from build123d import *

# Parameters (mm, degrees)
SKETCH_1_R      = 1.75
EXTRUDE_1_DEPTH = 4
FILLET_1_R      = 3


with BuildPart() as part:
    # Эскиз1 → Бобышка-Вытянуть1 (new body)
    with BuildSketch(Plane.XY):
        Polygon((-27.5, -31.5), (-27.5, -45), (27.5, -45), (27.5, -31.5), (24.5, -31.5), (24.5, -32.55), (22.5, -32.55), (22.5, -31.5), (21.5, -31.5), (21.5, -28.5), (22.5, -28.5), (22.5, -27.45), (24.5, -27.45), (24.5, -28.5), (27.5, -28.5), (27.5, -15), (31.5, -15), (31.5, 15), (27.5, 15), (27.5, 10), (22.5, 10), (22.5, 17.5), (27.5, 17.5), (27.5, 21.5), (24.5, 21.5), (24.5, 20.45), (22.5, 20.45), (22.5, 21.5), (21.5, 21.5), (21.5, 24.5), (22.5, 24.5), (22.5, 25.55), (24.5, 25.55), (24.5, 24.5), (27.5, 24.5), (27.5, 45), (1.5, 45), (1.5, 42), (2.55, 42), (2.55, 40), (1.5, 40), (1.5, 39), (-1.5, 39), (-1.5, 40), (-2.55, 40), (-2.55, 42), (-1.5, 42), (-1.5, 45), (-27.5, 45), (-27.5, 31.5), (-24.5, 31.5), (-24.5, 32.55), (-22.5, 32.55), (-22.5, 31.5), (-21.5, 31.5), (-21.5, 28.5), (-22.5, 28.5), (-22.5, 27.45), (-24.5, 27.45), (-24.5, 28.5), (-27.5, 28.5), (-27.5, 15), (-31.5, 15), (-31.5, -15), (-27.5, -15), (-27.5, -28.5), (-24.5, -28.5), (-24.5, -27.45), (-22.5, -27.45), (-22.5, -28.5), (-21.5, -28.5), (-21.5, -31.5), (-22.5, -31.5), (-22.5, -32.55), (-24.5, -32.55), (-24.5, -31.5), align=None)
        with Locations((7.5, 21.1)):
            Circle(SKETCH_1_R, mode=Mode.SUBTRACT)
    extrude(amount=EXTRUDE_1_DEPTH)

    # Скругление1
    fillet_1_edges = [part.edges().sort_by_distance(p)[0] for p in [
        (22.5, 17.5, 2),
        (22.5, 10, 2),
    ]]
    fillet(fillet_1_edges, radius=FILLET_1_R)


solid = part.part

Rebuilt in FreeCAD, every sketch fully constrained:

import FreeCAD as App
import Part
import Sketcher
from FreeCAD import Vector
Q = App.Units.Quantity


def edges_at(feature, points):
    """Names of the edges that pass closest to the given points."""
    edges = feature.Shape.Edges
    near = lambda p: min(range(len(edges)), key=lambda i: edges[i].distToShape(Part.Vertex(*p))[0])
    return sorted({f"Edge{near(p) + 1}" for p in points})

doc = App.newDocument("Part")
body = doc.addObject("PartDesign::Body", "Body")

# Sketch on XY plane
sketch1 = body.newObject("Sketcher::SketchObject", "Sketch")
sketch1.AttachmentSupport = (doc.getObject("XY_Plane"), [""])
sketch1.MapMode = "FlatFace"
sketch1.addGeometry([
    Part.LineSegment(Vector(-27.5, -31.5, 0), Vector(-27.5, -45, 0)),  # 0
    Part.LineSegment(Vector(-27.5, -45, 0), Vector(27.5, -45, 0)),  # 1
    Part.LineSegment(Vector(27.5, -45, 0), Vector(27.5, -31.5, 0)),  # 2
    Part.LineSegment(Vector(27.5, -31.5, 0), Vector(24.5, -31.5, 0)),  # 3
    Part.LineSegment(Vector(24.5, -31.5, 0), Vector(24.5, -32.55, 0)),  # 4
    Part.LineSegment(Vector(24.5, -32.55, 0), Vector(22.5, -32.55, 0)),  # 5
    Part.LineSegment(Vector(22.5, -32.55, 0), Vector(22.5, -31.5, 0)),  # 6
    Part.LineSegment(Vector(22.5, -31.5, 0), Vector(21.5, -31.5, 0)),  # 7
    Part.LineSegment(Vector(21.5, -31.5, 0), Vector(21.5, -28.5, 0)),  # 8
    Part.LineSegment(Vector(21.5, -28.5, 0), Vector(22.5, -28.5, 0)),  # 9
    Part.LineSegment(Vector(22.5, -28.5, 0), Vector(22.5, -27.45, 0)),  # 10
    Part.LineSegment(Vector(22.5, -27.45, 0), Vector(24.5, -27.45, 0)),  # 11
    Part.LineSegment(Vector(24.5, -27.45, 0), Vector(24.5, -28.5, 0)),  # 12
    Part.LineSegment(Vector(24.5, -28.5, 0), Vector(27.5, -28.5, 0)),  # 13
    Part.LineSegment(Vector(27.5, -28.5, 0), Vector(27.5, -15, 0)),  # 14
    Part.LineSegment(Vector(27.5, -15, 0), Vector(31.5, -15, 0)),  # 15
    Part.LineSegment(Vector(31.5, -15, 0), Vector(31.5, 15, 0)),  # 16
    Part.LineSegment(Vector(31.5, 15, 0), Vector(27.5, 15, 0)),  # 17
    Part.LineSegment(Vector(27.5, 15, 0), Vector(27.5, 10, 0)),  # 18
    Part.LineSegment(Vector(27.5, 10, 0), Vector(22.5, 10, 0)),  # 19
    Part.LineSegment(Vector(22.5, 10, 0), Vector(22.5, 17.5, 0)),  # 20
    Part.LineSegment(Vector(22.5, 17.5, 0), Vector(27.5, 17.5, 0)),  # 21
    Part.LineSegment(Vector(27.5, 17.5, 0), Vector(27.5, 21.5, 0)),  # 22
    Part.LineSegment(Vector(27.5, 21.5, 0), Vector(24.5, 21.5, 0)),  # 23
    Part.LineSegment(Vector(24.5, 21.5, 0), Vector(24.5, 20.45, 0)),  # 24
    Part.LineSegment(Vector(24.5, 20.45, 0), Vector(22.5, 20.45, 0)),  # 25
    Part.LineSegment(Vector(22.5, 20.45, 0), Vector(22.5, 21.5, 0)),  # 26
    Part.LineSegment(Vector(22.5, 21.5, 0), Vector(21.5, 21.5, 0)),  # 27
    Part.LineSegment(Vector(21.5, 21.5, 0), Vector(21.5, 24.5, 0)),  # 28
    Part.LineSegment(Vector(21.5, 24.5, 0), Vector(22.5, 24.5, 0)),  # 29
    Part.LineSegment(Vector(22.5, 24.5, 0), Vector(22.5, 25.55, 0)),  # 30
    Part.LineSegment(Vector(22.5, 25.55, 0), Vector(24.5, 25.55, 0)),  # 31
    Part.LineSegment(Vector(24.5, 25.55, 0), Vector(24.5, 24.5, 0)),  # 32
    Part.LineSegment(Vector(24.5, 24.5, 0), Vector(27.5, 24.5, 0)),  # 33
    Part.LineSegment(Vector(27.5, 24.5, 0), Vector(27.5, 45, 0)),  # 34
    Part.LineSegment(Vector(27.5, 45, 0), Vector(1.5, 45, 0)),  # 35
    Part.LineSegment(Vector(1.5, 45, 0), Vector(1.5, 42, 0)),  # 36
    Part.LineSegment(Vector(1.5, 42, 0), Vector(2.55, 42, 0)),  # 37
    Part.LineSegment(Vector(2.55, 42, 0), Vector(2.55, 40, 0)),  # 38
    Part.LineSegment(Vector(2.55, 40, 0), Vector(1.5, 40, 0)),  # 39
    Part.LineSegment(Vector(1.5, 40, 0), Vector(1.5, 39, 0)),  # 40
    Part.LineSegment(Vector(1.5, 39, 0), Vector(-1.5, 39, 0)),  # 41
    Part.LineSegment(Vector(-1.5, 39, 0), Vector(-1.5, 40, 0)),  # 42
    Part.LineSegment(Vector(-1.5, 40, 0), Vector(-2.55, 40, 0)),  # 43
    Part.LineSegment(Vector(-2.55, 40, 0), Vector(-2.55, 42, 0)),  # 44
    Part.LineSegment(Vector(-2.55, 42, 0), Vector(-1.5, 42, 0)),  # 45
    Part.LineSegment(Vector(-1.5, 42, 0), Vector(-1.5, 45, 0)),  # 46
    Part.LineSegment(Vector(-1.5, 45, 0), Vector(-27.5, 45, 0)),  # 47
    Part.LineSegment(Vector(-27.5, 45, 0), Vector(-27.5, 31.5, 0)),  # 48
    Part.LineSegment(Vector(-27.5, 31.5, 0), Vector(-24.5, 31.5, 0)),  # 49
    Part.LineSegment(Vector(-24.5, 31.5, 0), Vector(-24.5, 32.55, 0)),  # 50
    Part.LineSegment(Vector(-24.5, 32.55, 0), Vector(-22.5, 32.55, 0)),  # 51
    Part.LineSegment(Vector(-22.5, 32.55, 0), Vector(-22.5, 31.5, 0)),  # 52
    Part.LineSegment(Vector(-22.5, 31.5, 0), Vector(-21.5, 31.5, 0)),  # 53
    Part.LineSegment(Vector(-21.5, 31.5, 0), Vector(-21.5, 28.5, 0)),  # 54
    Part.LineSegment(Vector(-21.5, 28.5, 0), Vector(-22.5, 28.5, 0)),  # 55
    Part.LineSegment(Vector(-22.5, 28.5, 0), Vector(-22.5, 27.45, 0)),  # 56
    Part.LineSegment(Vector(-22.5, 27.45, 0), Vector(-24.5, 27.45, 0)),  # 57
    Part.LineSegment(Vector(-24.5, 27.45, 0), Vector(-24.5, 28.5, 0)),  # 58
    Part.LineSegment(Vector(-24.5, 28.5, 0), Vector(-27.5, 28.5, 0)),  # 59
    Part.LineSegment(Vector(-27.5, 28.5, 0), Vector(-27.5, 15, 0)),  # 60
    Part.LineSegment(Vector(-27.5, 15, 0), Vector(-31.5, 15, 0)),  # 61
    Part.LineSegment(Vector(-31.5, 15, 0), Vector(-31.5, -15, 0)),  # 62
    Part.LineSegment(Vector(-31.5, -15, 0), Vector(-27.5, -15, 0)),  # 63
    Part.LineSegment(Vector(-27.5, -15, 0), Vector(-27.5, -28.5, 0)),  # 64
    Part.LineSegment(Vector(-27.5, -28.5, 0), Vector(-24.5, -28.5, 0)),  # 65
    Part.LineSegment(Vector(-24.5, -28.5, 0), Vector(-24.5, -27.45, 0)),  # 66
    Part.LineSegment(Vector(-24.5, -27.45, 0), Vector(-22.5, -27.45, 0)),  # 67
    Part.LineSegment(Vector(-22.5, -27.45, 0), Vector(-22.5, -28.5, 0)),  # 68
    Part.LineSegment(Vector(-22.5, -28.5, 0), Vector(-21.5, -28.5, 0)),  # 69
    Part.LineSegment(Vector(-21.5, -28.5, 0), Vector(-21.5, -31.5, 0)),  # 70
    Part.LineSegment(Vector(-21.5, -31.5, 0), Vector(-22.5, -31.5, 0)),  # 71
    Part.LineSegment(Vector(-22.5, -31.5, 0), Vector(-22.5, -32.55, 0)),  # 72
    Part.LineSegment(Vector(-22.5, -32.55, 0), Vector(-24.5, -32.55, 0)),  # 73
    Part.LineSegment(Vector(-24.5, -32.55, 0), Vector(-24.5, -31.5, 0)),  # 74
    Part.LineSegment(Vector(-24.5, -31.5, 0), Vector(-27.5, -31.5, 0)),  # 75
    Part.Circle(Vector(7.5, 21.1, 0), Vector(0, 0, 1), 1.75),  # 76
], False)
sketch1.addConstraint([
    Sketcher.Constraint("Coincident", 0, 2, 1, 1),
    Sketcher.Constraint("Coincident", 1, 2, 2, 1),
    Sketcher.Constraint("Coincident", 2, 2, 3, 1),
    Sketcher.Constraint("Coincident", 3, 2, 4, 1),
    Sketcher.Constraint("Coincident", 4, 2, 5, 1),
    Sketcher.Constraint("Coincident", 5, 2, 6, 1),
    Sketcher.Constraint("Coincident", 6, 2, 7, 1),
    Sketcher.Constraint("Coincident", 7, 2, 8, 1),
    Sketcher.Constraint("Coincident", 8, 2, 9, 1),
    Sketcher.Constraint("Coincident", 9, 2, 10, 1),
    Sketcher.Constraint("Coincident", 10, 2, 11, 1),
    Sketcher.Constraint("Coincident", 11, 2, 12, 1),
    Sketcher.Constraint("Coincident", 12, 2, 13, 1),
    Sketcher.Constraint("Coincident", 13, 2, 14, 1),
    Sketcher.Constraint("Coincident", 14, 2, 15, 1),
    Sketcher.Constraint("Coincident", 15, 2, 16, 1),
    Sketcher.Constraint("Coincident", 16, 2, 17, 1),
    Sketcher.Constraint("Coincident", 17, 2, 18, 1),
    Sketcher.Constraint("Coincident", 18, 2, 19, 1),
    Sketcher.Constraint("Coincident", 19, 2, 20, 1),
    Sketcher.Constraint("Coincident", 20, 2, 21, 1),
    Sketcher.Constraint("Coincident", 21, 2, 22, 1),
    Sketcher.Constraint("Coincident", 22, 2, 23, 1),
    Sketcher.Constraint("Coincident", 23, 2, 24, 1),
    Sketcher.Constraint("Coincident", 24, 2, 25, 1),
    Sketcher.Constraint("Coincident", 25, 2, 26, 1),
    Sketcher.Constraint("Coincident", 26, 2, 27, 1),
    Sketcher.Constraint("Coincident", 27, 2, 28, 1),
    Sketcher.Constraint("Coincident", 28, 2, 29, 1),
    Sketcher.Constraint("Coincident", 29, 2, 30, 1),
    Sketcher.Constraint("Coincident", 30, 2, 31, 1),
    Sketcher.Constraint("Coincident", 31, 2, 32, 1),
    Sketcher.Constraint("Coincident", 32, 2, 33, 1),
    Sketcher.Constraint("Coincident", 33, 2, 34, 1),
    Sketcher.Constraint("Coincident", 34, 2, 35, 1),
    Sketcher.Constraint("Coincident", 35, 2, 36, 1),
    Sketcher.Constraint("Coincident", 36, 2, 37, 1),
    Sketcher.Constraint("Coincident", 37, 2, 38, 1),
    Sketcher.Constraint("Coincident", 38, 2, 39, 1),
    Sketcher.Constraint("Coincident", 39, 2, 40, 1),
    Sketcher.Constraint("Coincident", 40, 2, 41, 1),
    Sketcher.Constraint("Coincident", 41, 2, 42, 1),
    Sketcher.Constraint("Coincident", 42, 2, 43, 1),
    Sketcher.Constraint("Coincident", 43, 2, 44, 1),
    Sketcher.Constraint("Coincident", 44, 2, 45, 1),
    Sketcher.Constraint("Coincident", 45, 2, 46, 1),
    Sketcher.Constraint("Coincident", 46, 2, 47, 1),
    Sketcher.Constraint("Coincident", 47, 2, 48, 1),
    Sketcher.Constraint("Coincident", 48, 2, 49, 1),
    Sketcher.Constraint("Coincident", 49, 2, 50, 1),
    Sketcher.Constraint("Coincident", 50, 2, 51, 1),
    Sketcher.Constraint("Coincident", 51, 2, 52, 1),
    Sketcher.Constraint("Coincident", 52, 2, 53, 1),
    Sketcher.Constraint("Coincident", 53, 2, 54, 1),
    Sketcher.Constraint("Coincident", 54, 2, 55, 1),
    Sketcher.Constraint("Coincident", 55, 2, 56, 1),
    Sketcher.Constraint("Coincident", 56, 2, 57, 1),
    Sketcher.Constraint("Coincident", 57, 2, 58, 1),
    Sketcher.Constraint("Coincident", 58, 2, 59, 1),
    Sketcher.Constraint("Coincident", 59, 2, 60, 1),
    Sketcher.Constraint("Coincident", 60, 2, 61, 1),
    Sketcher.Constraint("Coincident", 61, 2, 62, 1),
    Sketcher.Constraint("Coincident", 62, 2, 63, 1),
    Sketcher.Constraint("Coincident", 63, 2, 64, 1),
    Sketcher.Constraint("Coincident", 64, 2, 65, 1),
    Sketcher.Constraint("Coincident", 65, 2, 66, 1),
    Sketcher.Constraint("Coincident", 66, 2, 67, 1),
    Sketcher.Constraint("Coincident", 67, 2, 68, 1),
    Sketcher.Constraint("Coincident", 68, 2, 69, 1),
    Sketcher.Constraint("Coincident", 69, 2, 70, 1),
    Sketcher.Constraint("Coincident", 70, 2, 71, 1),
    Sketcher.Constraint("Coincident", 71, 2, 72, 1),
    Sketcher.Constraint("Coincident", 72, 2, 73, 1),
    Sketcher.Constraint("Coincident", 73, 2, 74, 1),
    Sketcher.Constraint("Coincident", 74, 2, 75, 1),
    Sketcher.Constraint("Coincident", 75, 2, 0, 1),
    Sketcher.Constraint("Vertical", 0),
    Sketcher.Constraint("Horizontal", 1),
    Sketcher.Constraint("Vertical", 2),
    Sketcher.Constraint("Horizontal", 3),
    Sketcher.Constraint("Vertical", 4),
    Sketcher.Constraint("Horizontal", 5),
    Sketcher.Constraint("Vertical", 6),
    Sketcher.Constraint("Horizontal", 7),
    Sketcher.Constraint("Vertical", 8),
    Sketcher.Constraint("Horizontal", 9),
    Sketcher.Constraint("Vertical", 10),
    Sketcher.Constraint("Horizontal", 11),
    Sketcher.Constraint("Vertical", 12),
    Sketcher.Constraint("Horizontal", 13),
    Sketcher.Constraint("Vertical", 14),
    Sketcher.Constraint("Horizontal", 15),
    Sketcher.Constraint("Vertical", 16),
    Sketcher.Constraint("Horizontal", 17),
    Sketcher.Constraint("Vertical", 18),
    Sketcher.Constraint("Horizontal", 19),
    Sketcher.Constraint("Vertical", 20),
    Sketcher.Constraint("Horizontal", 21),
    Sketcher.Constraint("Vertical", 22),
    Sketcher.Constraint("Horizontal", 23),
    Sketcher.Constraint("Vertical", 24),
    Sketcher.Constraint("Horizontal", 25),
    Sketcher.Constraint("Vertical", 26),
    Sketcher.Constraint("Horizontal", 27),
    Sketcher.Constraint("Vertical", 28),
    Sketcher.Constraint("Horizontal", 29),
    Sketcher.Constraint("Vertical", 30),
    Sketcher.Constraint("Horizontal", 31),
    Sketcher.Constraint("Vertical", 32),
    Sketcher.Constraint("Horizontal", 33),
    Sketcher.Constraint("Vertical", 34),
    Sketcher.Constraint("Horizontal", 35),
    Sketcher.Constraint("Vertical", 36),
    Sketcher.Constraint("Horizontal", 37),
    Sketcher.Constraint("Vertical", 38),
    Sketcher.Constraint("Horizontal", 39),
    Sketcher.Constraint("Vertical", 40),
    Sketcher.Constraint("Horizontal", 41),
    Sketcher.Constraint("Vertical", 42),
    Sketcher.Constraint("Horizontal", 43),
    Sketcher.Constraint("Vertical", 44),
    Sketcher.Constraint("Horizontal", 45),
    Sketcher.Constraint("Vertical", 46),
    Sketcher.Constraint("Horizontal", 47),
    Sketcher.Constraint("Vertical", 48),
    Sketcher.Constraint("Horizontal", 49),
    Sketcher.Constraint("Vertical", 50),
    Sketcher.Constraint("Horizontal", 51),
    Sketcher.Constraint("Vertical", 52),
    Sketcher.Constraint("Horizontal", 53),
    Sketcher.Constraint("Vertical", 54),
    Sketcher.Constraint("Horizontal", 55),
    Sketcher.Constraint("Vertical", 56),
    Sketcher.Constraint("Horizontal", 57),
    Sketcher.Constraint("Vertical", 58),
    Sketcher.Constraint("Horizontal", 59),
    Sketcher.Constraint("Vertical", 60),
    Sketcher.Constraint("Horizontal", 61),
    Sketcher.Constraint("Vertical", 62),
    Sketcher.Constraint("Horizontal", 63),
    Sketcher.Constraint("Vertical", 64),
    Sketcher.Constraint("Horizontal", 65),
    Sketcher.Constraint("Vertical", 66),
    Sketcher.Constraint("Horizontal", 67),
    Sketcher.Constraint("Vertical", 68),
    Sketcher.Constraint("Horizontal", 69),
    Sketcher.Constraint("Vertical", 70),
    Sketcher.Constraint("Horizontal", 71),
    Sketcher.Constraint("Vertical", 72),
    Sketcher.Constraint("Horizontal", 73),
    Sketcher.Constraint("Vertical", 74),
    Sketcher.Constraint("Horizontal", 75),
    Sketcher.Constraint("Symmetric", 0, 2, 34, 2, -1, 1),
    Sketcher.Constraint("Symmetric", 1, 2, 47, 2, -1, 1),
    Sketcher.Constraint("Symmetric", 3, 2, 49, 2, -1, 1),
    Sketcher.Constraint("Symmetric", 5, 2, 51, 2, -1, 1),
    Sketcher.Constraint("Symmetric", 7, 2, 53, 2, -1, 1),
    Sketcher.Constraint("Symmetric", 9, 2, 55, 2, -1, 1),
    Sketcher.Constraint("Symmetric", 11, 2, 57, 2, -1, 1),
    Sketcher.Constraint("Symmetric", 13, 2, 59, 2, -1, 1),
    Sketcher.Constraint("Symmetric", 15, 2, 61, 2, -1, 1),
    Sketcher.Constraint("Symmetric", 17, 2, 63, 2, -1, 1),
    Sketcher.Constraint("Symmetric", 39, 2, 42, 2, -2),
    Sketcher.Constraint("Symmetric", 37, 2, 44, 2, -2),
    Sketcher.Constraint("Symmetric", 17, 2, 60, 2, -2),
    Sketcher.Constraint("Symmetric", 12, 2, 65, 2, -2),
    Sketcher.Constraint("Symmetric", 10, 2, 67, 2, -2),
    Sketcher.Constraint("Symmetric", 8, 2, 69, 2, -2),
    Sketcher.Constraint("Symmetric", 6, 2, 71, 2, -2),
    Sketcher.Constraint("Symmetric", 4, 2, 73, 2, -2),
    Sketcher.Constraint("Symmetric", 2, 2, 75, 2, -2),
    Sketcher.Constraint("Horizontal", 3, 2, 6, 2),
    Sketcher.Constraint("Horizontal", 9, 2, 12, 2),
    Sketcher.Constraint("Horizontal", 23, 2, 26, 2),
    Sketcher.Constraint("Horizontal", 29, 2, 32, 2),
    Sketcher.Constraint("Vertical", 6, 2, 9, 2),
    Sketcher.Constraint("Vertical", 4, 2, 11, 2),
    Sketcher.Constraint("Vertical", 2, 2, 13, 2),
    Sketcher.Constraint("Vertical", 10, 2, 19, 2),
    Sketcher.Constraint("Vertical", 18, 2, 21, 2),
    Sketcher.Constraint("Vertical", 12, 2, 23, 2),
    Sketcher.Constraint("Vertical", 20, 2, 25, 2),
    Sketcher.Constraint("Vertical", 8, 2, 27, 2),
    Sketcher.Constraint("Vertical", 26, 2, 29, 2),
    Sketcher.Constraint("Vertical", 24, 2, 31, 2),
    Sketcher.Constraint("Vertical", 36, 2, 39, 2),
    Sketcher.Constraint("Vertical", 42, 2, 45, 2),
    Sketcher.Constraint("Equal", 33, 41),
    Sketcher.Constraint("Equal", 45, 4),
    Sketcher.Constraint("Equal", 75, 8),
    Sketcher.Constraint("Equal", 6, 10),
    Sketcher.Constraint("Equal", 2, 14),
    Sketcher.Constraint("Equal", 21, 18),
    Sketcher.Constraint("Equal", 63, 22),
    Sketcher.Constraint("Equal", 12, 24),
    Sketcher.Constraint("Equal", 8, 28),
    Sketcher.Constraint("Equal", 26, 30),
    Sketcher.Constraint("Equal", 28, 36),
    Sketcher.Constraint("Equal", 73, 38),
    Sketcher.Constraint("Equal", 71, 40),
    Sketcher.Constraint("Diameter", 76, Q("3.5 mm")),
    Sketcher.Constraint("DistanceX", 1, 1, 1, 2, Q("55 mm")),
    Sketcher.Constraint("DistanceX", 3, 2, 3, 1, Q("3 mm")),
    Sketcher.Constraint("DistanceX", 5, 2, 5, 1, Q("2 mm")),
    Sketcher.Constraint("DistanceX", 7, 2, 7, 1, Q("1 mm")),
    Sketcher.Constraint("DistanceX", 15, 1, 15, 2, Q("4 mm")),
    Sketcher.Constraint("DistanceY", 16, 1, 16, 2, Q("30 mm")),
    Sketcher.Constraint("DistanceY", 0, 2, 0, 1, Q("13.5 mm")),
    Sketcher.Constraint("DistanceY", 20, 1, 20, 2, Q("7.5 mm")),
    Sketcher.Constraint("DistanceX", 37, 1, 37, 2, Q("1.05 mm")),
    Sketcher.Constraint("DistanceX", -1, 1, 76, 3, Q("7.5 mm")),
    Sketcher.Constraint("DistanceY", -1, 1, 76, 3, Q("21.1 mm")),
])
pad1 = body.newObject("PartDesign::Pad", "Pad")
pad1.Profile = sketch1
pad1.Length = 4
doc.recompute()

fillet = body.newObject("PartDesign::Fillet", "Fillet")
fillet.Base = (pad1, edges_at(pad1, [(22.5, 17.5, 2), (22.5, 10, 2)]))
fillet.Radius = 3

doc.recompute()
